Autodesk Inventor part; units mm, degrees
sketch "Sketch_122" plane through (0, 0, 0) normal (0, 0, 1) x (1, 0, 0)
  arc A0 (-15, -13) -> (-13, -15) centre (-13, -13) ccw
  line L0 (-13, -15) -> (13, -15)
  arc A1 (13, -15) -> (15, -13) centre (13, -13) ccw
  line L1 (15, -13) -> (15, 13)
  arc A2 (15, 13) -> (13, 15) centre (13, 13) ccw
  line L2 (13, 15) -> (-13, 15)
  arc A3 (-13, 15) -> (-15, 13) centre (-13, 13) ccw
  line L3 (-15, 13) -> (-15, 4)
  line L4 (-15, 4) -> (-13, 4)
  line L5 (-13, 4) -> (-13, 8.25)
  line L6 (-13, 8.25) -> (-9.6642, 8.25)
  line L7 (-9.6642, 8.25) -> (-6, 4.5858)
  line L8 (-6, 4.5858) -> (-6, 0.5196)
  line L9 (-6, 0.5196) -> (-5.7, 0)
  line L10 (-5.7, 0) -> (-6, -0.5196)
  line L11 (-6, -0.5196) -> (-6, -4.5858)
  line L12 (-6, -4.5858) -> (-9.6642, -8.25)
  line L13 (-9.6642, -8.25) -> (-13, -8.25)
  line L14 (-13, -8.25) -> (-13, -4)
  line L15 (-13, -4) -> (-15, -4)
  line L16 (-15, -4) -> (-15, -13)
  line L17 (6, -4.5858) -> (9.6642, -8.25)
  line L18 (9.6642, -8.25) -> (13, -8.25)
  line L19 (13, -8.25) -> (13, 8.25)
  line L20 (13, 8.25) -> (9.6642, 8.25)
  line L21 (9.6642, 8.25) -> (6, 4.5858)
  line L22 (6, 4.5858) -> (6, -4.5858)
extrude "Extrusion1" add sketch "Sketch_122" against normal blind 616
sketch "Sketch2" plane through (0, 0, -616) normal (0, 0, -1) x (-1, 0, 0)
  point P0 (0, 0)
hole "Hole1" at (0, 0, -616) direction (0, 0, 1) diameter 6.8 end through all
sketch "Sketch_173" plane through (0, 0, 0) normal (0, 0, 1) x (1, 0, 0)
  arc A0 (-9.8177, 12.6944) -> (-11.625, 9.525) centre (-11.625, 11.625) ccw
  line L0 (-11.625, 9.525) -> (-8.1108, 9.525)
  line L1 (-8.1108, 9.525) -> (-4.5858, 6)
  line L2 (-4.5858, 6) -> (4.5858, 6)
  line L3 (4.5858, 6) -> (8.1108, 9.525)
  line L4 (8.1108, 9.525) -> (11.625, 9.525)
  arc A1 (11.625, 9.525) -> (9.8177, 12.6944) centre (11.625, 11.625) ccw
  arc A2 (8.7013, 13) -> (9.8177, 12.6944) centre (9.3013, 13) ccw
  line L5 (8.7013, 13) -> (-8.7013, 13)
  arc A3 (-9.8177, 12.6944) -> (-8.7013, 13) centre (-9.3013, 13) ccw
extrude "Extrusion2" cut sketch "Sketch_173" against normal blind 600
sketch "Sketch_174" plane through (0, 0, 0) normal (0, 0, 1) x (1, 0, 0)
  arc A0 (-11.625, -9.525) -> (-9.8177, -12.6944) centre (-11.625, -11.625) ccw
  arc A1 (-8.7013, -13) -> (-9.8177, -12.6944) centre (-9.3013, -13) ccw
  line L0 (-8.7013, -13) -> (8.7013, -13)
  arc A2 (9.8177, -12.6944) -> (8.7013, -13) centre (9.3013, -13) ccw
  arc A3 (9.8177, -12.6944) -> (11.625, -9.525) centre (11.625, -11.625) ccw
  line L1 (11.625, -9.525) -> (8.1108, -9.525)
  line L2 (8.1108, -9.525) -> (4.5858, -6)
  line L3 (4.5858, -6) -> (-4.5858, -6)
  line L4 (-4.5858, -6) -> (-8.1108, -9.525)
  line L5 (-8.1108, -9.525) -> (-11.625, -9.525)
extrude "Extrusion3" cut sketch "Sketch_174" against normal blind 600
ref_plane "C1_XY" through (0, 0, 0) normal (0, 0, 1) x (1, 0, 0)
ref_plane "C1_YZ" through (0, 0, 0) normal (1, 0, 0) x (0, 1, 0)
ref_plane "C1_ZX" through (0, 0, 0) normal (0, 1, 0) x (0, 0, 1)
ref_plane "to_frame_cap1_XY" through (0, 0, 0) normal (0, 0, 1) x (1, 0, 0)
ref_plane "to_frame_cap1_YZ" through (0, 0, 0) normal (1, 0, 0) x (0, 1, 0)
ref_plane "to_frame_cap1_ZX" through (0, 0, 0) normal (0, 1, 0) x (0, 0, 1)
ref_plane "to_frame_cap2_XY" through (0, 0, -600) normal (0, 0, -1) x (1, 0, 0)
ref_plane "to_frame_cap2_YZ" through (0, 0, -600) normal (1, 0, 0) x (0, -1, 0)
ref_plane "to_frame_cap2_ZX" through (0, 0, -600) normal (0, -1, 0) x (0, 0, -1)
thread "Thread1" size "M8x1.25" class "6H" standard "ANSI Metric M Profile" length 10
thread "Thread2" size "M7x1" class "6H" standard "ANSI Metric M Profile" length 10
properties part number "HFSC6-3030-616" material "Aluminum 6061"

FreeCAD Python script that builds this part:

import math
import FreeCAD as App
import Part
import Sketcher

V = App.Vector
Q = App.Units.Quantity

doc = App.newDocument("Part")
params = doc.addObject("Spreadsheet::Sheet", "Params")
for row, (alias, value) in enumerate([
    ("sketch1_radius", "2 mm"),
    ("sketch1_width", "26 mm"),
    ("sketch1_height", "9 mm"),
    ("sketch1_height2", "16.5 mm"),
    ("sketch1_length", "0.6 mm"),
    ("pad1_length", "616 mm"),
    ("sketch2_diameter", "6.8 mm"),
    ("hole_diameter", "6.8 mm"),
    ("sketch3_radius", "0.6 mm"),
    ("sketch3_radius2", "2.1 mm"),
    ("pocket1_length", "600 mm"),
    ("sketch4_radius", "2.1 mm"),
    ("sketch4_radius2", "0.6 mm"),
    ("pocket2_length", "600 mm"),
], start=1):
    params.set(f"A{row}", alias)
    params.set(f"B{row}", "=" + value)
    params.setAlias(f"B{row}", alias)

body = doc.addObject("PartDesign::Body", "Body")

sketch1 = body.newObject("Sketcher::SketchObject", "Sketch")
sketch1.AttachmentSupport = (doc.getObject("XY_Plane"), [""])
sketch1.MapMode = "FlatFace"
sketch1.addGeometry([
    Part.LineSegment(V(-15, -4, 0), V(-15, -13, 0)),
    Part.ArcOfCircle(Part.Circle(V(-13, -13, 0), V(0, 0, 1), 2), math.radians(180), math.radians(270)),
    Part.LineSegment(V(-13, -15, 0), V(13, -15, 0)),
    Part.ArcOfCircle(Part.Circle(V(13, -13, 0), V(0, 0, 1), 2), math.radians(-90), math.radians(0)),
    Part.LineSegment(V(15, -13, 0), V(15, 13, 0)),
    Part.ArcOfCircle(Part.Circle(V(13, 13, 0), V(0, 0, 1), 2), math.radians(0), math.radians(90)),
    Part.LineSegment(V(13, 15, 0), V(-13, 15, 0)),
    Part.ArcOfCircle(Part.Circle(V(-13, 13, 0), V(0, 0, 1), 2), math.radians(90), math.radians(180)),
    Part.LineSegment(V(-15, 13, 0), V(-15, 4, 0)),
    Part.LineSegment(V(-15, 4, 0), V(-13, 4, 0)),
    Part.LineSegment(V(-13, 4, 0), V(-13, 8.25, 0)),
    Part.LineSegment(V(-13, 8.25, 0), V(-9.6642, 8.25, 0)),
    Part.LineSegment(V(-9.6642, 8.25, 0), V(-6, 4.5858, 0)),
    Part.LineSegment(V(-6, 4.5858, 0), V(-6, 0.5196, 0)),
    Part.LineSegment(V(-6, 0.5196, 0), V(-5.7, 0, 0)),
    Part.LineSegment(V(-5.7, 0, 0), V(-6, -0.5196, 0)),
    Part.LineSegment(V(-6, -0.5196, 0), V(-6, -4.5858, 0)),
    Part.LineSegment(V(-6, -4.5858, 0), V(-9.6642, -8.25, 0)),
    Part.LineSegment(V(-9.6642, -8.25, 0), V(-13, -8.25, 0)),
    Part.LineSegment(V(-13, -8.25, 0), V(-13, -4, 0)),
    Part.LineSegment(V(-13, -4, 0), V(-15, -4, 0)),
    Part.LineSegment(V(9.6642, -8.25, 0), V(6, -4.5858, 0)),
    Part.LineSegment(V(6, -4.5858, 0), V(6, 4.5858, 0)),
    Part.LineSegment(V(6, 4.5858, 0), V(9.6642, 8.25, 0)),
    Part.LineSegment(V(9.6642, 8.25, 0), V(13, 8.25, 0)),
    Part.LineSegment(V(13, 8.25, 0), V(13, -8.25, 0)),
    Part.LineSegment(V(13, -8.25, 0), V(9.6642, -8.25, 0)),
], False)
sketch1.addConstraint([
    Sketcher.Constraint("Tangent", 0, 2, 1, 1),
    Sketcher.Constraint("Tangent", 1, 2, 2, 1),
    Sketcher.Constraint("Tangent", 2, 2, 3, 1),
    Sketcher.Constraint("Tangent", 3, 2, 4, 1),
    Sketcher.Constraint("Tangent", 4, 2, 5, 1),
    Sketcher.Constraint("Tangent", 5, 2, 6, 1),
    Sketcher.Constraint("Tangent", 6, 2, 7, 1),
    Sketcher.Constraint("Tangent", 7, 2, 8, 1),
    Sketcher.Constraint("Coincident", 8, 2, 9, 1),
    Sketcher.Constraint("Coincident", 9, 2, 10, 1),
    Sketcher.Constraint("Coincident", 10, 2, 11, 1),
    Sketcher.Constraint("Coincident", 11, 2, 12, 1),
    Sketcher.Constraint("Coincident", 12, 2, 13, 1),
    Sketcher.Constraint("Coincident", 13, 2, 14, 1),
    Sketcher.Constraint("Coincident", 14, 2, 15, 1),
    Sketcher.Constraint("Coincident", 15, 2, 16, 1),
    Sketcher.Constraint("Coincident", 16, 2, 17, 1),
    Sketcher.Constraint("Coincident", 17, 2, 18, 1),
    Sketcher.Constraint("Coincident", 18, 2, 19, 1),
    Sketcher.Constraint("Coincident", 19, 2, 20, 1),
    Sketcher.Constraint("Coincident", 20, 2, 0, 1),
    Sketcher.Constraint("Coincident", 21, 2, 22, 1),
    Sketcher.Constraint("Coincident", 22, 2, 23, 1),
    Sketcher.Constraint("Coincident", 23, 2, 24, 1),
    Sketcher.Constraint("Coincident", 24, 2, 25, 1),
    Sketcher.Constraint("Coincident", 25, 2, 26, 1),
    Sketcher.Constraint("Coincident", 26, 2, 21, 1),
    Sketcher.Constraint("Vertical", 0),
    Sketcher.Constraint("Horizontal", 2),
    Sketcher.Constraint("Vertical", 4),
    Sketcher.Constraint("Horizontal", 6),
    Sketcher.Constraint("Vertical", 8),
    Sketcher.Constraint("Horizontal", 9),
    Sketcher.Constraint("Vertical", 10),
    Sketcher.Constraint("Horizontal", 11),
    Sketcher.Constraint("Vertical", 13),
    Sketcher.Constraint("Vertical", 16),
    Sketcher.Constraint("Horizontal", 18),
    Sketcher.Constraint("Vertical", 19),
    Sketcher.Constraint("Horizontal", 20),
    Sketcher.Constraint("Vertical", 22),
    Sketcher.Constraint("Horizontal", 24),
    Sketcher.Constraint("Vertical", 25),
    Sketcher.Constraint("Horizontal", 26),
    Sketcher.Constraint("Equal", 1, 3),
    Sketcher.Constraint("Equal", 3, 5),
    Sketcher.Constraint("Equal", 5, 7),
    Sketcher.Constraint("Symmetric", 1, 3, 5, 3, -1, 1),
    Sketcher.Constraint("Symmetric", 12, 2, 21, 2, -1, 1),
    Sketcher.Constraint("Symmetric", 16, 2, 22, 2, -1, 1),
    Sketcher.Constraint("Symmetric", 17, 2, 23, 2, -1, 1),
    Sketcher.Constraint("Symmetric", 10, 2, 25, 2, -1, 1),
    Sketcher.Constraint("Symmetric", 11, 2, 23, 2, -2),
    Sketcher.Constraint("Symmetric", 9, 2, 19, 2, -1),
    Sketcher.Constraint("PointOnObject", 14, 2, -1),
    Sketcher.Constraint("Perpendicular", 12, 17),
    Sketcher.Constraint("Perpendicular", 17, 21),
    Sketcher.Constraint("Horizontal", 16, 2, 21, 2),
    Sketcher.Constraint("Vertical", 1, 3, 7, 3),
    Sketcher.Constraint("Vertical", 6, 2, 9, 2),
    Sketcher.Constraint("Equal", 6, 4),
    Sketcher.Constraint("Equal", 13, 16),
    Sketcher.Constraint("Radius", 1, 2.0),
    Sketcher.Constraint("DistanceX", 2, 1, 2, 2, 26.0),
    Sketcher.Constraint("DistanceY", 0, 2, 0, 1, 9.0),
    Sketcher.Constraint("Angle", 14, Q("-59.9993 deg")),
    Sketcher.Constraint("DistanceY", 25, 2, 25, 1, 16.5),
    Sketcher.Constraint("DistanceX", 12, 2, -1, 1, 6.0),
    Sketcher.Constraint("Distance", 14, 0.6),
    Sketcher.Constraint("Distance", 12, 5.182),
])
sketch1.setExpression("Constraints[62]", "Params.sketch1_radius")
sketch1.setExpression("Constraints[63]", "Params.sketch1_width")
sketch1.setExpression("Constraints[64]", "Params.sketch1_height")
sketch1.setExpression("Constraints[66]", "Params.sketch1_height2")
sketch1.setExpression("Constraints[68]", "Params.sketch1_length")
pad1 = body.newObject("PartDesign::Pad", "Pad")
pad1.Profile = sketch1
pad1.setExpression("Length", "Params.pad1_length")
pad1.Reversed = True

sketch2 = body.newObject("Sketcher::SketchObject", "Sketch001")
sketch2.AttachmentSupport = (doc.getObject("XY_Plane"), [""])
sketch2.MapMode = "FlatFace"
sketch2.AttachmentOffset = App.Placement(V(0, 0, -616), App.Rotation())
sketch2.addGeometry(Part.Circle(V(0, 0, 0), V(0, 0, 1), 3.4), False)
sketch2.addConstraint([
    Sketcher.Constraint("Coincident", 0, 3, -1, 1),
    Sketcher.Constraint("Diameter", 0, 6.8),
])
sketch2.setExpression("Constraints[1]", "Params.sketch2_diameter")
doc.recompute()
hole = body.newObject("PartDesign::Hole", "Hole")
hole.Profile = sketch2
hole.ThreadType = "None"
hole.setExpression("Diameter", "Params.hole_diameter")
hole.DepthType = "ThroughAll"
hole.Reversed = True

sketch3 = body.newObject("Sketcher::SketchObject", "Sketch002")
sketch3.AttachmentSupport = (doc.getObject("XY_Plane"), [""])
sketch3.MapMode = "FlatFace"
sketch3.addGeometry([
    Part.ArcOfCircle(Part.Circle(V(-9.3013, 13, 0), V(0, 0, 1), 0.60005), math.radians(-149.383407), math.radians(0)),
    Part.ArcOfCircle(Part.Circle(V(-11.625, 11.625, 0), V(0, 0, 1), 2.099988), math.radians(30.613287), math.radians(270)),
    Part.LineSegment(V(-11.625, 9.525, 0), V(-8.1108, 9.525, 0)),
    Part.LineSegment(V(-8.1108, 9.525, 0), V(-4.5858, 6, 0)),
    Part.LineSegment(V(-4.5858, 6, 0), V(4.5858, 6, 0)),
    Part.LineSegment(V(4.5858, 6, 0), V(8.1108, 9.525, 0)),
    Part.LineSegment(V(8.1108, 9.525, 0), V(11.625, 9.525, 0)),
    Part.ArcOfCircle(Part.Circle(V(11.625, 11.625, 0), V(0, 0, 1), 2.1), math.radians(-90), math.radians(149.386713)),
    Part.ArcOfCircle(Part.Circle(V(9.3013, 13, 0), V(0, 0, 1), 0.6), math.radians(180), math.radians(329.383407)),
    Part.LineSegment(V(8.7013, 13, 0), V(-8.7013, 13, 0)),
], False)
sketch3.addConstraint([
    Sketcher.Constraint("Tangent", 0, 1, 1, 1),
    Sketcher.Constraint("Tangent", 1, 2, 2, 1),
    Sketcher.Constraint("Coincident", 2, 2, 3, 1),
    Sketcher.Constraint("Coincident", 3, 2, 4, 1),
    Sketcher.Constraint("Coincident", 4, 2, 5, 1),
    Sketcher.Constraint("Coincident", 5, 2, 6, 1),
    Sketcher.Constraint("Tangent", 6, 2, 7, 1),
    Sketcher.Constraint("Tangent", 7, 2, 8, 2),
    Sketcher.Constraint("Coincident", 8, 1, 9, 1),
    Sketcher.Constraint("Coincident", 9, 2, 0, 2),
    Sketcher.Constraint("Horizontal", 2),
    Sketcher.Constraint("Horizontal", 4),
    Sketcher.Constraint("Horizontal", 6),
    Sketcher.Constraint("Horizontal", 9),
    Sketcher.Constraint("Equal", 1, 7),
    Sketcher.Constraint("Equal", 0, 8),
    Sketcher.Constraint("Symmetric", 1, 3, 7, 3, -2),
    Sketcher.Constraint("Perpendicular", 3, 5),
    Sketcher.Constraint("Horizontal", 0, 3, 8, 3),
    Sketcher.Constraint("Horizontal", 0, 3, 8, 1),
    Sketcher.Constraint("Equal", 2, 6),
    Sketcher.Constraint("Equal", 3, 5),
    Sketcher.Constraint("Radius", 0, 0.6),
    Sketcher.Constraint("Radius", 1, 2.1),
    Sketcher.Constraint("DistanceY", -1, 1, 0, 3, 13.0),
    Sketcher.Constraint("DistanceY", -1, 1, 3, 2, 6.0),
    Sketcher.Constraint("DistanceX", 1, 3, 7, 3, 23.25),
    Sketcher.Constraint("Distance", 3, 4.985),
    Sketcher.Constraint("DistanceX", 2, 1, 2, 2, 3.5142),
])
sketch3.setExpression("Constraints[22]", "Params.sketch3_radius")
sketch3.setExpression("Constraints[23]", "Params.sketch3_radius2")
pocket1 = body.newObject("PartDesign::Pocket", "Pocket")
pocket1.Profile = sketch3
pocket1.setExpression("Length", "Params.pocket1_length")

sketch4 = body.newObject("Sketcher::SketchObject", "Sketch003")
sketch4.AttachmentSupport = (doc.getObject("XY_Plane"), [""])
sketch4.MapMode = "FlatFace"
sketch4.addGeometry([
    Part.LineSegment(V(-8.1108, -9.525, 0), V(-11.625, -9.525, 0)),
    Part.ArcOfCircle(Part.Circle(V(-11.625, -11.625, 0), V(0, 0, 1), 2.1), math.radians(90), math.radians(329.386713)),
    Part.ArcOfCircle(Part.Circle(V(-9.3013, -13, 0), V(0, 0, 1), 0.6), math.radians(0), math.radians(149.383407)),
    Part.LineSegment(V(-8.7013, -13, 0), V(8.7013, -13, 0)),
    Part.ArcOfCircle(Part.Circle(V(9.3013, -13, 0), V(0, 0, 1), 0.60005), math.radians(30.616593), math.radians(180)),
    Part.ArcOfCircle(Part.Circle(V(11.625, -11.625, 0), V(0, 0, 1), 2.099988), math.radians(-149.386713), math.radians(90)),
    Part.LineSegment(V(11.625, -9.525, 0), V(8.1108, -9.525, 0)),
    Part.LineSegment(V(8.1108, -9.525, 0), V(4.5858, -6, 0)),
    Part.LineSegment(V(4.5858, -6, 0), V(-4.5858, -6, 0)),
    Part.LineSegment(V(-4.5858, -6, 0), V(-8.1108, -9.525, 0)),
], False)
sketch4.addConstraint([
    Sketcher.Constraint("Tangent", 0, 2, 1, 1),
    Sketcher.Constraint("Tangent", 1, 2, 2, 2),
    Sketcher.Constraint("Coincident", 2, 1, 3, 1),
    Sketcher.Constraint("Coincident", 3, 2, 4, 2),
    Sketcher.Constraint("Tangent", 4, 1, 5, 1),
    Sketcher.Constraint("Tangent", 5, 2, 6, 1),
    Sketcher.Constraint("Coincident", 6, 2, 7, 1),
    Sketcher.Constraint("Coincident", 7, 2, 8, 1),
    Sketcher.Constraint("Coincident", 8, 2, 9, 1),
    Sketcher.Constraint("Coincident", 9, 2, 0, 1),
    Sketcher.Constraint("Horizontal", 0),
    Sketcher.Constraint("Horizontal", 3),
    Sketcher.Constraint("Horizontal", 6),
    Sketcher.Constraint("Horizontal", 8),
    Sketcher.Constraint("Equal", 2, 4),
    Sketcher.Constraint("Equal", 1, 5),
    Sketcher.Constraint("Symmetric", 2, 3, 4, 3, -2),
    Sketcher.Constraint("Symmetric", 6, 2, 9, 2, -2),
    Sketcher.Constraint("Perpendicular", 7, 9),
    Sketcher.Constraint("Horizontal", 4, 3, 2, 1),
    Sketcher.Constraint("Equal", 7, 9),
    Sketcher.Constraint("Radius", 1, 2.1),
    Sketcher.Constraint("Radius", 2, 0.6),
    Sketcher.Constraint("DistanceY", 2, 3, -1, 1, 13.0),
    Sketcher.Constraint("DistanceY", 7, 2, -1, 1, 6.0),
    Sketcher.Constraint("DistanceX", 1, 3, 5, 3, 23.25),
    Sketcher.Constraint("Distance", 7, 4.985),
    Sketcher.Constraint("DistanceX", 0, 2, 0, 1, 3.5142),
])
sketch4.setExpression("Constraints[21]", "Params.sketch4_radius")
sketch4.setExpression("Constraints[22]", "Params.sketch4_radius2")
pocket2 = body.newObject("PartDesign::Pocket", "Pocket001")
pocket2.Profile = sketch4
pocket2.setExpression("Length", "Params.pocket2_length")

doc.recompute()
